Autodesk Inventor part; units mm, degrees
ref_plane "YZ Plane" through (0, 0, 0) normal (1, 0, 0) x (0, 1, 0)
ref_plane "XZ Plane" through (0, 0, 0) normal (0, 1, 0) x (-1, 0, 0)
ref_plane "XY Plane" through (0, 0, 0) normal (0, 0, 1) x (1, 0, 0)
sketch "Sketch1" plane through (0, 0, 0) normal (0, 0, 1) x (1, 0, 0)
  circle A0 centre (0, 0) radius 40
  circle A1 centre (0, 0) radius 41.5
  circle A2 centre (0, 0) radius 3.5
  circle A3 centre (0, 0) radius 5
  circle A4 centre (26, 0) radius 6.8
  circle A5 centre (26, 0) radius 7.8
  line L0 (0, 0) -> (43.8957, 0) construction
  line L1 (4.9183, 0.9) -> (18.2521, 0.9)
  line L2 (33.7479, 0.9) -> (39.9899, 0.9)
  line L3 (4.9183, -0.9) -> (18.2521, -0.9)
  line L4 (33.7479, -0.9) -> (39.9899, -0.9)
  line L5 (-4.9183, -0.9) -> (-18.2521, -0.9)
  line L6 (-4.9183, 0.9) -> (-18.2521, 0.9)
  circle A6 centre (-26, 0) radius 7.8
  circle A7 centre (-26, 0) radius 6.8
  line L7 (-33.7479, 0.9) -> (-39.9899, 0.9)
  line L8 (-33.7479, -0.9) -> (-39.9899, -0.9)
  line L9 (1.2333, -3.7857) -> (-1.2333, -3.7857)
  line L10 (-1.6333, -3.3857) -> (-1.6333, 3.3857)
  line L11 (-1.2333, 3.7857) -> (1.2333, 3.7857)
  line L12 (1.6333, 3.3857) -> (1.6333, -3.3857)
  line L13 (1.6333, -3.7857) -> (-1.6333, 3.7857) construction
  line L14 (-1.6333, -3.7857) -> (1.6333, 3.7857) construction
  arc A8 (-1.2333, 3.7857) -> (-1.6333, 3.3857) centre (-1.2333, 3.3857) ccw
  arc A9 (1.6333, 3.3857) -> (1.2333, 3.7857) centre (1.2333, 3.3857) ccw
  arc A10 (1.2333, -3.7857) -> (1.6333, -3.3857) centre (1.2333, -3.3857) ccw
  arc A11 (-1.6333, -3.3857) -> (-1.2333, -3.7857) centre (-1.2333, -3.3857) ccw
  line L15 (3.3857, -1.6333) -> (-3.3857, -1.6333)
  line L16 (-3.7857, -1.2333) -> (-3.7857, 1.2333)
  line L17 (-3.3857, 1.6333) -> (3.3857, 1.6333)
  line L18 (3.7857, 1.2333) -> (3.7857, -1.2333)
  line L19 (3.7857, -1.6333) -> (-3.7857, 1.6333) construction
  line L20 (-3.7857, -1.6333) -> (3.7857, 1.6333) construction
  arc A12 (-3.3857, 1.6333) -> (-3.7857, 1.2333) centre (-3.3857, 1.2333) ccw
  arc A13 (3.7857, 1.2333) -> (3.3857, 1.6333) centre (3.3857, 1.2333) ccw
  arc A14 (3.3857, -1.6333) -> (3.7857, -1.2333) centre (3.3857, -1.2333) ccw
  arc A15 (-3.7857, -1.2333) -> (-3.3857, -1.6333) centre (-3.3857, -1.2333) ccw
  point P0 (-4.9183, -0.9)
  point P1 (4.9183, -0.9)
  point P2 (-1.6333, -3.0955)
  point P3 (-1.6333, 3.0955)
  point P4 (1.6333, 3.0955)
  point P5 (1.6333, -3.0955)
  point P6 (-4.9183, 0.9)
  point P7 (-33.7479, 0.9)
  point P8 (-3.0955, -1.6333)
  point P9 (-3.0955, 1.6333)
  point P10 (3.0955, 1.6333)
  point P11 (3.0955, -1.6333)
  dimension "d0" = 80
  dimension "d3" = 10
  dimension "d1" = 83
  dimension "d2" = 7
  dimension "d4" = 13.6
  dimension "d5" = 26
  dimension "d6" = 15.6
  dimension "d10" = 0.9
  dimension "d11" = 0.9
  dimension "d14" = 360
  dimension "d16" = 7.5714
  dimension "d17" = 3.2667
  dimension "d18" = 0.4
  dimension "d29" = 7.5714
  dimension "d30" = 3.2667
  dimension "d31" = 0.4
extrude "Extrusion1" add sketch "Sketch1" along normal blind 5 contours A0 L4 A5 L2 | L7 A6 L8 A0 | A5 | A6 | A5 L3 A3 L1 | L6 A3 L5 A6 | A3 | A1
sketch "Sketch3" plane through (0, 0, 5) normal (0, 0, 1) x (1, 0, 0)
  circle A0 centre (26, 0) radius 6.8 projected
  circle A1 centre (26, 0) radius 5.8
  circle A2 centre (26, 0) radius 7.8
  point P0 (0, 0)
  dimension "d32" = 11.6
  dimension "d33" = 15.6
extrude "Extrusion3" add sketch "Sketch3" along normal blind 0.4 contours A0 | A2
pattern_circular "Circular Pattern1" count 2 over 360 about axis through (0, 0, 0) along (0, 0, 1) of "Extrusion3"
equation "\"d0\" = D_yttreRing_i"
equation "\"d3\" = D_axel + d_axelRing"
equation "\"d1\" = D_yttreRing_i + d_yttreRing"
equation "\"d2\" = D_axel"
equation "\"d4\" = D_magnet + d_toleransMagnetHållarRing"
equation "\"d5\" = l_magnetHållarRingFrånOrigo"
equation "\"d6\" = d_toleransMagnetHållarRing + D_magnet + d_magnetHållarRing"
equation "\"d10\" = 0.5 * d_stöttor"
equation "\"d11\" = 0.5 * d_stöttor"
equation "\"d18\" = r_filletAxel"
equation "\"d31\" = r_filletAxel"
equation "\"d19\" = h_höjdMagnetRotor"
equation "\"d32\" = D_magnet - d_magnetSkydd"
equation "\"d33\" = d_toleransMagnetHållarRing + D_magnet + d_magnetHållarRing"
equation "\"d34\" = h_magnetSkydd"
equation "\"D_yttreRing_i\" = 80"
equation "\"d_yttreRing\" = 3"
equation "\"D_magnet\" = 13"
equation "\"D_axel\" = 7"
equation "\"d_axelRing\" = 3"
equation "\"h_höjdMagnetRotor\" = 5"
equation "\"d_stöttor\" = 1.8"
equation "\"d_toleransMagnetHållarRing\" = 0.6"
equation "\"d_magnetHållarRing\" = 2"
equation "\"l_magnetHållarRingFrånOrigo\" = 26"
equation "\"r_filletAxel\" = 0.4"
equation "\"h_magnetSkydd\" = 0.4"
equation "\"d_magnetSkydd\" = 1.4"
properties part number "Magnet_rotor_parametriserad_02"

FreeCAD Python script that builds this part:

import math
import FreeCAD as App
import Part
import Sketcher

doc = App.newDocument("Part")
body = doc.addObject("PartDesign::Body", "Body")

sketch1 = body.newObject("Sketcher::SketchObject", "Sketch")
sketch1.AttachmentSupport = (doc.getObject("XY_Plane"), [""])
sketch1.MapMode = "FlatFace"
sketch1.addGeometry(Part.Circle(App.Vector(0, 0, 0), App.Vector(0, 0, 1), 41.5), False)
sketch1.addGeometry(Part.LineSegment(App.Vector(33.75, -0.9, 0), App.Vector(39.99, -0.9, 0)), False)
sketch1.addGeometry(Part.ArcOfCircle(Part.Circle(App.Vector(0, 0, 0), App.Vector(0, 0, 1), 40), math.radians(-179), math.radians(-1)), False)
sketch1.addGeometry(Part.LineSegment(App.Vector(-39.99, -0.9, 0), App.Vector(-33.75, -0.9, 0)), False)
sketch1.addGeometry(Part.ArcOfCircle(Part.Circle(App.Vector(-26, 0, 0), App.Vector(0, 0, 1), 7.8), math.radians(-173), math.radians(-7)), False)
sketch1.addGeometry(Part.LineSegment(App.Vector(-18.25, -0.9, 0), App.Vector(-4.92, -0.9, 0)), False)
sketch1.addGeometry(Part.ArcOfCircle(Part.Circle(App.Vector(0, 0, 0), App.Vector(0, 0, 1), 5), math.radians(-170), math.radians(-10)), False)
sketch1.addGeometry(Part.LineSegment(App.Vector(4.92, -0.9, 0), App.Vector(18.25, -0.9, 0)), False)
sketch1.addGeometry(Part.ArcOfCircle(Part.Circle(App.Vector(26, 0, 0), App.Vector(0, 0, 1), 7.8), math.radians(-173), math.radians(-7)), False)
sketch1.addGeometry(Part.LineSegment(App.Vector(39.99, 0.9, 0), App.Vector(33.75, 0.9, 0)), False)
sketch1.addGeometry(Part.ArcOfCircle(Part.Circle(App.Vector(26, 0, 0), App.Vector(0, 0, 1), 7.8), math.radians(7), math.radians(173)), False)
sketch1.addGeometry(Part.LineSegment(App.Vector(18.25, 0.9, 0), App.Vector(4.92, 0.9, 0)), False)
sketch1.addGeometry(Part.ArcOfCircle(Part.Circle(App.Vector(0, 0, 0), App.Vector(0, 0, 1), 5), math.radians(10), math.radians(170)), False)
sketch1.addGeometry(Part.LineSegment(App.Vector(-4.92, 0.9, 0), App.Vector(-18.25, 0.9, 0)), False)
sketch1.addGeometry(Part.ArcOfCircle(Part.Circle(App.Vector(-26, 0, 0), App.Vector(0, 0, 1), 7.8), math.radians(7), math.radians(173)), False)
sketch1.addGeometry(Part.LineSegment(App.Vector(-33.75, 0.9, 0), App.Vector(-39.99, 0.9, 0)), False)
sketch1.addGeometry(Part.ArcOfCircle(Part.Circle(App.Vector(0, 0, 0), App.Vector(0, 0, 1), 40), math.radians(1), math.radians(179)), False)
sketch1.addGeometry(Part.Circle(App.Vector(26, 0, 0), App.Vector(0, 0, 1), 6.8), False)
sketch1.addGeometry(Part.Circle(App.Vector(-26, 0, 0), App.Vector(0, 0, 1), 6.8), False)
sketch1.addGeometry(Part.ArcOfCircle(Part.Circle(App.Vector(3.39, 1.23, 0), App.Vector(0, 0, 1), 0.4), math.radians(0), math.radians(90)), False)
sketch1.addGeometry(Part.LineSegment(App.Vector(3.79, 1.23, 0), App.Vector(3.79, -1.23, 0)), False)
sketch1.addGeometry(Part.ArcOfCircle(Part.Circle(App.Vector(3.39, -1.23, 0), App.Vector(0, 0, 1), 0.4), math.radians(-90), math.radians(0)), False)
sketch1.addGeometry(Part.LineSegment(App.Vector(3.39, -1.63, 0), App.Vector(3.1, -1.63, 0)), False)
sketch1.addGeometry(Part.ArcOfCircle(Part.Circle(App.Vector(0, 0, 0), App.Vector(0, 0, 1), 3.5), math.radians(-62), math.radians(-28)), False)
sketch1.addGeometry(Part.LineSegment(App.Vector(1.63, -3.1, 0), App.Vector(1.63, -3.39, 0)), False)
sketch1.addGeometry(Part.ArcOfCircle(Part.Circle(App.Vector(1.23, -3.39, 0), App.Vector(0, 0, 1), 0.4), math.radians(-90), math.radians(0)), False)
sketch1.addGeometry(Part.LineSegment(App.Vector(1.23, -3.79, 0), App.Vector(-1.23, -3.79, 0)), False)
sketch1.addGeometry(Part.ArcOfCircle(Part.Circle(App.Vector(-1.23, -3.39, 0), App.Vector(0, 0, 1), 0.4), math.radians(180), math.radians(270)), False)
sketch1.addGeometry(Part.LineSegment(App.Vector(-1.63, -3.39, 0), App.Vector(-1.63, -3.1, 0)), False)
sketch1.addGeometry(Part.ArcOfCircle(Part.Circle(App.Vector(0, 0, 0), App.Vector(0, 0, 1), 3.5), math.radians(-152), math.radians(-118)), False)
sketch1.addGeometry(Part.LineSegment(App.Vector(-3.1, -1.63, 0), App.Vector(-3.39, -1.63, 0)), False)
sketch1.addGeometry(Part.ArcOfCircle(Part.Circle(App.Vector(-3.39, -1.23, 0), App.Vector(0, 0, 1), 0.4), math.radians(180), math.radians(270)), False)
sketch1.addGeometry(Part.LineSegment(App.Vector(-3.79, -1.23, 0), App.Vector(-3.79, 1.23, 0)), False)
sketch1.addGeometry(Part.ArcOfCircle(Part.Circle(App.Vector(-3.39, 1.23, 0), App.Vector(0, 0, 1), 0.4), math.radians(90), math.radians(180)), False)
sketch1.addGeometry(Part.LineSegment(App.Vector(-3.39, 1.63, 0), App.Vector(-3.1, 1.63, 0)), False)
sketch1.addGeometry(Part.ArcOfCircle(Part.Circle(App.Vector(0, 0, 0), App.Vector(0, 0, 1), 3.5), math.radians(118), math.radians(152)), False)
sketch1.addGeometry(Part.LineSegment(App.Vector(-1.63, 3.1, 0), App.Vector(-1.63, 3.39, 0)), False)
sketch1.addGeometry(Part.ArcOfCircle(Part.Circle(App.Vector(-1.23, 3.39, 0), App.Vector(0, 0, 1), 0.4), math.radians(90), math.radians(180)), False)
sketch1.addGeometry(Part.LineSegment(App.Vector(-1.23, 3.79, 0), App.Vector(1.23, 3.79, 0)), False)
sketch1.addGeometry(Part.ArcOfCircle(Part.Circle(App.Vector(1.23, 3.39, 0), App.Vector(0, 0, 1), 0.4), math.radians(0), math.radians(90)), False)
sketch1.addGeometry(Part.LineSegment(App.Vector(1.63, 3.39, 0), App.Vector(1.63, 3.1, 0)), False)
sketch1.addGeometry(Part.ArcOfCircle(Part.Circle(App.Vector(0, 0, 0), App.Vector(0, 0, 1), 3.5), math.radians(28), math.radians(62)), False)
sketch1.addGeometry(Part.LineSegment(App.Vector(3.1, 1.63, 0), App.Vector(3.39, 1.63, 0)), False)
sketch1.addConstraint(Sketcher.Constraint("Coincident", 1, 2, 2, 2))
sketch1.addConstraint(Sketcher.Constraint("Coincident", 2, 1, 3, 1))
sketch1.addConstraint(Sketcher.Constraint("Coincident", 3, 2, 4, 1))
sketch1.addConstraint(Sketcher.Constraint("Coincident", 4, 2, 5, 1))
sketch1.addConstraint(Sketcher.Constraint("Coincident", 5, 2, 6, 1))
sketch1.addConstraint(Sketcher.Constraint("Coincident", 6, 2, 7, 1))
sketch1.addConstraint(Sketcher.Constraint("Coincident", 7, 2, 8, 1))
sketch1.addConstraint(Sketcher.Constraint("Coincident", 8, 2, 1, 1))
sketch1.addConstraint(Sketcher.Constraint("Coincident", 9, 2, 10, 1))
sketch1.addConstraint(Sketcher.Constraint("Coincident", 10, 2, 11, 1))
sketch1.addConstraint(Sketcher.Constraint("Coincident", 11, 2, 12, 1))
sketch1.addConstraint(Sketcher.Constraint("Coincident", 12, 2, 13, 1))
sketch1.addConstraint(Sketcher.Constraint("Coincident", 13, 2, 14, 1))
sketch1.addConstraint(Sketcher.Constraint("Coincident", 14, 2, 15, 1))
sketch1.addConstraint(Sketcher.Constraint("Coincident", 15, 2, 16, 2))
sketch1.addConstraint(Sketcher.Constraint("Coincident", 16, 1, 9, 1))
sketch1.addConstraint(Sketcher.Constraint("Tangent", 19, 1, 20, 1))
sketch1.addConstraint(Sketcher.Constraint("Tangent", 20, 2, 21, 2))
sketch1.addConstraint(Sketcher.Constraint("Tangent", 21, 1, 22, 1))
sketch1.addConstraint(Sketcher.Constraint("Coincident", 22, 2, 23, 2))
sketch1.addConstraint(Sketcher.Constraint("Coincident", 23, 1, 24, 1))
sketch1.addConstraint(Sketcher.Constraint("Tangent", 24, 2, 25, 2))
sketch1.addConstraint(Sketcher.Constraint("Tangent", 25, 1, 26, 1))
sketch1.addConstraint(Sketcher.Constraint("Tangent", 26, 2, 27, 2))
sketch1.addConstraint(Sketcher.Constraint("Tangent", 27, 1, 28, 1))
sketch1.addConstraint(Sketcher.Constraint("Coincident", 28, 2, 29, 2))
sketch1.addConstraint(Sketcher.Constraint("Coincident", 29, 1, 30, 1))
sketch1.addConstraint(Sketcher.Constraint("Tangent", 30, 2, 31, 2))
sketch1.addConstraint(Sketcher.Constraint("Tangent", 31, 1, 32, 1))
sketch1.addConstraint(Sketcher.Constraint("Tangent", 32, 2, 33, 2))
sketch1.addConstraint(Sketcher.Constraint("Tangent", 33, 1, 34, 1))
sketch1.addConstraint(Sketcher.Constraint("Coincident", 34, 2, 35, 2))
sketch1.addConstraint(Sketcher.Constraint("Coincident", 35, 1, 36, 1))
sketch1.addConstraint(Sketcher.Constraint("Tangent", 36, 2, 37, 2))
sketch1.addConstraint(Sketcher.Constraint("Tangent", 37, 1, 38, 1))
sketch1.addConstraint(Sketcher.Constraint("Tangent", 38, 2, 39, 2))
sketch1.addConstraint(Sketcher.Constraint("Tangent", 39, 1, 40, 1))
sketch1.addConstraint(Sketcher.Constraint("Coincident", 40, 2, 41, 2))
sketch1.addConstraint(Sketcher.Constraint("Coincident", 41, 1, 42, 1))
sketch1.addConstraint(Sketcher.Constraint("Tangent", 42, 2, 19, 2))
sketch1.addConstraint(Sketcher.Constraint("Horizontal", 1))
sketch1.addConstraint(Sketcher.Constraint("Horizontal", 3))
sketch1.addConstraint(Sketcher.Constraint("Horizontal", 5))
sketch1.addConstraint(Sketcher.Constraint("Horizontal", 7))
sketch1.addConstraint(Sketcher.Constraint("Horizontal", 9))
sketch1.addConstraint(Sketcher.Constraint("Horizontal", 11))
sketch1.addConstraint(Sketcher.Constraint("Horizontal", 13))
sketch1.addConstraint(Sketcher.Constraint("Horizontal", 15))
sketch1.addConstraint(Sketcher.Constraint("Vertical", 20))
sketch1.addConstraint(Sketcher.Constraint("Horizontal", 22))
sketch1.addConstraint(Sketcher.Constraint("Vertical", 24))
sketch1.addConstraint(Sketcher.Constraint("Horizontal", 26))
sketch1.addConstraint(Sketcher.Constraint("Vertical", 28))
sketch1.addConstraint(Sketcher.Constraint("Horizontal", 30))
sketch1.addConstraint(Sketcher.Constraint("Vertical", 32))
sketch1.addConstraint(Sketcher.Constraint("Horizontal", 34))
sketch1.addConstraint(Sketcher.Constraint("Vertical", 36))
sketch1.addConstraint(Sketcher.Constraint("Horizontal", 38))
sketch1.addConstraint(Sketcher.Constraint("Vertical", 40))
sketch1.addConstraint(Sketcher.Constraint("Horizontal", 42))
sketch1.addConstraint(Sketcher.Constraint("Coincident", 0, 3, -1, 1))
sketch1.addConstraint(Sketcher.Constraint("Coincident", 2, 3, -1, 1))
sketch1.addConstraint(Sketcher.Constraint("Coincident", 6, 3, -1, 1))
sketch1.addConstraint(Sketcher.Constraint("Coincident", 12, 3, -1, 1))
sketch1.addConstraint(Sketcher.Constraint("Coincident", 16, 3, -1, 1))
sketch1.addConstraint(Sketcher.Constraint("Coincident", 23, 3, -1, 1))
sketch1.addConstraint(Sketcher.Constraint("Coincident", 29, 3, -1, 1))
sketch1.addConstraint(Sketcher.Constraint("Coincident", 35, 3, -1, 1))
sketch1.addConstraint(Sketcher.Constraint("Coincident", 41, 3, -1, 1))
sketch1.addConstraint(Sketcher.Constraint("Coincident", 10, 3, 8, 3))
sketch1.addConstraint(Sketcher.Constraint("Coincident", 14, 3, 4, 3))
sketch1.addConstraint(Sketcher.Constraint("Coincident", 17, 3, 8, 3))
sketch1.addConstraint(Sketcher.Constraint("Coincident", 18, 3, 4, 3))
sketch1.addConstraint(Sketcher.Constraint("Equal", 4, 8))
sketch1.addConstraint(Sketcher.Constraint("Equal", 8, 10))
sketch1.addConstraint(Sketcher.Constraint("Equal", 6, 12))
sketch1.addConstraint(Sketcher.Constraint("Equal", 10, 14))
sketch1.addConstraint(Sketcher.Constraint("Equal", 2, 16))
sketch1.addConstraint(Sketcher.Constraint("Equal", 17, 18))
sketch1.addConstraint(Sketcher.Constraint("Equal", 19, 21))
sketch1.addConstraint(Sketcher.Constraint("Equal", 21, 25))
sketch1.addConstraint(Sketcher.Constraint("Equal", 25, 27))
sketch1.addConstraint(Sketcher.Constraint("Equal", 23, 29))
sketch1.addConstraint(Sketcher.Constraint("Equal", 27, 31))
sketch1.addConstraint(Sketcher.Constraint("Equal", 31, 33))
sketch1.addConstraint(Sketcher.Constraint("Equal", 29, 35))
sketch1.addConstraint(Sketcher.Constraint("Equal", 33, 37))
sketch1.addConstraint(Sketcher.Constraint("Equal", 37, 39))
sketch1.addConstraint(Sketcher.Constraint("Equal", 35, 41))
sketch1.addConstraint(Sketcher.Constraint("Symmetric", 4, 3, 8, 3, -1, 1))
sketch1.addConstraint(Sketcher.Constraint("Symmetric", 19, 3, 31, 3, -1, 1))
sketch1.addConstraint(Sketcher.Constraint("Symmetric", 25, 3, 37, 3, -1, 1))
sketch1.addConstraint(Sketcher.Constraint("Symmetric", 4, 2, 7, 2, -2))
sketch1.addConstraint(Sketcher.Constraint("Horizontal", 21, 3, 31, 3))
sketch1.addConstraint(Sketcher.Constraint("Horizontal", 19, 3, 33, 3))
sketch1.addConstraint(Sketcher.Constraint("Horizontal", 1, 2, 2, 1))
sketch1.addConstraint(Sketcher.Constraint("Horizontal", 3, 2, 4, 2))
sketch1.addConstraint(Sketcher.Constraint("Horizontal", 9, 2, 10, 2))
sketch1.addConstraint(Sketcher.Constraint("Horizontal", 11, 2, 12, 2))
sketch1.addConstraint(Sketcher.Constraint("Horizontal", 13, 2, 14, 2))
sketch1.addConstraint(Sketcher.Constraint("Horizontal", 23, 1, 28, 2))
sketch1.addConstraint(Sketcher.Constraint("Horizontal", 35, 1, 40, 2))
sketch1.addConstraint(Sketcher.Constraint("Vertical", 8, 2, 9, 2))
sketch1.addConstraint(Sketcher.Constraint("Equal", 38, 20))
sketch1.addConstraint(Sketcher.Constraint("Equal", 42, 24))
sketch1.addConstraint(Sketcher.Constraint("Diameter", 0, 83.0))
sketch1.addConstraint(Sketcher.Constraint("Radius", 2, 40.0))
sketch1.addConstraint(Sketcher.Constraint("Radius", 6, 5.0))
sketch1.addConstraint(Sketcher.Constraint("Diameter", 17, 13.6))
sketch1.addConstraint(Sketcher.Constraint("Radius", 4, 7.8))
sketch1.addConstraint(Sketcher.Constraint("Radius", 19, 0.4))
sketch1.addConstraint(Sketcher.Constraint("Radius", 23, 3.5))
sketch1.addConstraint(Sketcher.Constraint("DistanceX", 4, 3, -1, 1, 26.0))
sketch1.addConstraint(Sketcher.Constraint("DistanceY", 1, 2, -1, 1, 0.9))
sketch1.addConstraint(Sketcher.Constraint("DistanceX", 22, 2, 22, 1, 0.2902))
sketch1.addConstraint(Sketcher.Constraint("DistanceX", 26, 2, 26, 1, 2.4666))
pad1 = body.newObject("PartDesign::Pad", "Pad")
pad1.Profile = sketch1
pad1.Length = 5

sketch2 = body.newObject("Sketcher::SketchObject", "Sketch001")
sketch2.AttachmentSupport = (doc.getObject("XY_Plane"), [""])
sketch2.MapMode = "FlatFace"
sketch2.AttachmentOffset = App.Placement(App.Vector(0, 0, 5), App.Rotation())
sketch2.addGeometry(Part.Circle(App.Vector(26, 0, 0), App.Vector(0, 0, 1), 8), False)
sketch2.addGeometry(Part.Circle(App.Vector(26, 0, 0), App.Vector(0, 0, 1), 6), False)
sketch2.addConstraint(Sketcher.Constraint("Coincident", 1, 3, 0, 3))
sketch2.addConstraint(Sketcher.Constraint("PointOnObject", 0, 3, -1))
sketch2.addConstraint(Sketcher.Constraint("Diameter", 0, 15.6))
sketch2.addConstraint(Sketcher.Constraint("Diameter", 1, 11.6))
sketch2.addConstraint(Sketcher.Constraint("DistanceX", -1, 1, 0, 3, 26.0))
pad2 = body.newObject("PartDesign::Pad", "Pad001")
pad2.Profile = sketch2
pad2.Length = 0.4
doc.recompute()

polarpattern = body.newObject("PartDesign::PolarPattern", "PolarPattern")
polarpattern.Originals = [pad2]
polarpattern.Axis = (doc.getObject("Z_Axis"), [""])
polarpattern.Angle = 360
polarpattern.Occurrences = 2
body.Tip = polarpattern

doc.recompute()
